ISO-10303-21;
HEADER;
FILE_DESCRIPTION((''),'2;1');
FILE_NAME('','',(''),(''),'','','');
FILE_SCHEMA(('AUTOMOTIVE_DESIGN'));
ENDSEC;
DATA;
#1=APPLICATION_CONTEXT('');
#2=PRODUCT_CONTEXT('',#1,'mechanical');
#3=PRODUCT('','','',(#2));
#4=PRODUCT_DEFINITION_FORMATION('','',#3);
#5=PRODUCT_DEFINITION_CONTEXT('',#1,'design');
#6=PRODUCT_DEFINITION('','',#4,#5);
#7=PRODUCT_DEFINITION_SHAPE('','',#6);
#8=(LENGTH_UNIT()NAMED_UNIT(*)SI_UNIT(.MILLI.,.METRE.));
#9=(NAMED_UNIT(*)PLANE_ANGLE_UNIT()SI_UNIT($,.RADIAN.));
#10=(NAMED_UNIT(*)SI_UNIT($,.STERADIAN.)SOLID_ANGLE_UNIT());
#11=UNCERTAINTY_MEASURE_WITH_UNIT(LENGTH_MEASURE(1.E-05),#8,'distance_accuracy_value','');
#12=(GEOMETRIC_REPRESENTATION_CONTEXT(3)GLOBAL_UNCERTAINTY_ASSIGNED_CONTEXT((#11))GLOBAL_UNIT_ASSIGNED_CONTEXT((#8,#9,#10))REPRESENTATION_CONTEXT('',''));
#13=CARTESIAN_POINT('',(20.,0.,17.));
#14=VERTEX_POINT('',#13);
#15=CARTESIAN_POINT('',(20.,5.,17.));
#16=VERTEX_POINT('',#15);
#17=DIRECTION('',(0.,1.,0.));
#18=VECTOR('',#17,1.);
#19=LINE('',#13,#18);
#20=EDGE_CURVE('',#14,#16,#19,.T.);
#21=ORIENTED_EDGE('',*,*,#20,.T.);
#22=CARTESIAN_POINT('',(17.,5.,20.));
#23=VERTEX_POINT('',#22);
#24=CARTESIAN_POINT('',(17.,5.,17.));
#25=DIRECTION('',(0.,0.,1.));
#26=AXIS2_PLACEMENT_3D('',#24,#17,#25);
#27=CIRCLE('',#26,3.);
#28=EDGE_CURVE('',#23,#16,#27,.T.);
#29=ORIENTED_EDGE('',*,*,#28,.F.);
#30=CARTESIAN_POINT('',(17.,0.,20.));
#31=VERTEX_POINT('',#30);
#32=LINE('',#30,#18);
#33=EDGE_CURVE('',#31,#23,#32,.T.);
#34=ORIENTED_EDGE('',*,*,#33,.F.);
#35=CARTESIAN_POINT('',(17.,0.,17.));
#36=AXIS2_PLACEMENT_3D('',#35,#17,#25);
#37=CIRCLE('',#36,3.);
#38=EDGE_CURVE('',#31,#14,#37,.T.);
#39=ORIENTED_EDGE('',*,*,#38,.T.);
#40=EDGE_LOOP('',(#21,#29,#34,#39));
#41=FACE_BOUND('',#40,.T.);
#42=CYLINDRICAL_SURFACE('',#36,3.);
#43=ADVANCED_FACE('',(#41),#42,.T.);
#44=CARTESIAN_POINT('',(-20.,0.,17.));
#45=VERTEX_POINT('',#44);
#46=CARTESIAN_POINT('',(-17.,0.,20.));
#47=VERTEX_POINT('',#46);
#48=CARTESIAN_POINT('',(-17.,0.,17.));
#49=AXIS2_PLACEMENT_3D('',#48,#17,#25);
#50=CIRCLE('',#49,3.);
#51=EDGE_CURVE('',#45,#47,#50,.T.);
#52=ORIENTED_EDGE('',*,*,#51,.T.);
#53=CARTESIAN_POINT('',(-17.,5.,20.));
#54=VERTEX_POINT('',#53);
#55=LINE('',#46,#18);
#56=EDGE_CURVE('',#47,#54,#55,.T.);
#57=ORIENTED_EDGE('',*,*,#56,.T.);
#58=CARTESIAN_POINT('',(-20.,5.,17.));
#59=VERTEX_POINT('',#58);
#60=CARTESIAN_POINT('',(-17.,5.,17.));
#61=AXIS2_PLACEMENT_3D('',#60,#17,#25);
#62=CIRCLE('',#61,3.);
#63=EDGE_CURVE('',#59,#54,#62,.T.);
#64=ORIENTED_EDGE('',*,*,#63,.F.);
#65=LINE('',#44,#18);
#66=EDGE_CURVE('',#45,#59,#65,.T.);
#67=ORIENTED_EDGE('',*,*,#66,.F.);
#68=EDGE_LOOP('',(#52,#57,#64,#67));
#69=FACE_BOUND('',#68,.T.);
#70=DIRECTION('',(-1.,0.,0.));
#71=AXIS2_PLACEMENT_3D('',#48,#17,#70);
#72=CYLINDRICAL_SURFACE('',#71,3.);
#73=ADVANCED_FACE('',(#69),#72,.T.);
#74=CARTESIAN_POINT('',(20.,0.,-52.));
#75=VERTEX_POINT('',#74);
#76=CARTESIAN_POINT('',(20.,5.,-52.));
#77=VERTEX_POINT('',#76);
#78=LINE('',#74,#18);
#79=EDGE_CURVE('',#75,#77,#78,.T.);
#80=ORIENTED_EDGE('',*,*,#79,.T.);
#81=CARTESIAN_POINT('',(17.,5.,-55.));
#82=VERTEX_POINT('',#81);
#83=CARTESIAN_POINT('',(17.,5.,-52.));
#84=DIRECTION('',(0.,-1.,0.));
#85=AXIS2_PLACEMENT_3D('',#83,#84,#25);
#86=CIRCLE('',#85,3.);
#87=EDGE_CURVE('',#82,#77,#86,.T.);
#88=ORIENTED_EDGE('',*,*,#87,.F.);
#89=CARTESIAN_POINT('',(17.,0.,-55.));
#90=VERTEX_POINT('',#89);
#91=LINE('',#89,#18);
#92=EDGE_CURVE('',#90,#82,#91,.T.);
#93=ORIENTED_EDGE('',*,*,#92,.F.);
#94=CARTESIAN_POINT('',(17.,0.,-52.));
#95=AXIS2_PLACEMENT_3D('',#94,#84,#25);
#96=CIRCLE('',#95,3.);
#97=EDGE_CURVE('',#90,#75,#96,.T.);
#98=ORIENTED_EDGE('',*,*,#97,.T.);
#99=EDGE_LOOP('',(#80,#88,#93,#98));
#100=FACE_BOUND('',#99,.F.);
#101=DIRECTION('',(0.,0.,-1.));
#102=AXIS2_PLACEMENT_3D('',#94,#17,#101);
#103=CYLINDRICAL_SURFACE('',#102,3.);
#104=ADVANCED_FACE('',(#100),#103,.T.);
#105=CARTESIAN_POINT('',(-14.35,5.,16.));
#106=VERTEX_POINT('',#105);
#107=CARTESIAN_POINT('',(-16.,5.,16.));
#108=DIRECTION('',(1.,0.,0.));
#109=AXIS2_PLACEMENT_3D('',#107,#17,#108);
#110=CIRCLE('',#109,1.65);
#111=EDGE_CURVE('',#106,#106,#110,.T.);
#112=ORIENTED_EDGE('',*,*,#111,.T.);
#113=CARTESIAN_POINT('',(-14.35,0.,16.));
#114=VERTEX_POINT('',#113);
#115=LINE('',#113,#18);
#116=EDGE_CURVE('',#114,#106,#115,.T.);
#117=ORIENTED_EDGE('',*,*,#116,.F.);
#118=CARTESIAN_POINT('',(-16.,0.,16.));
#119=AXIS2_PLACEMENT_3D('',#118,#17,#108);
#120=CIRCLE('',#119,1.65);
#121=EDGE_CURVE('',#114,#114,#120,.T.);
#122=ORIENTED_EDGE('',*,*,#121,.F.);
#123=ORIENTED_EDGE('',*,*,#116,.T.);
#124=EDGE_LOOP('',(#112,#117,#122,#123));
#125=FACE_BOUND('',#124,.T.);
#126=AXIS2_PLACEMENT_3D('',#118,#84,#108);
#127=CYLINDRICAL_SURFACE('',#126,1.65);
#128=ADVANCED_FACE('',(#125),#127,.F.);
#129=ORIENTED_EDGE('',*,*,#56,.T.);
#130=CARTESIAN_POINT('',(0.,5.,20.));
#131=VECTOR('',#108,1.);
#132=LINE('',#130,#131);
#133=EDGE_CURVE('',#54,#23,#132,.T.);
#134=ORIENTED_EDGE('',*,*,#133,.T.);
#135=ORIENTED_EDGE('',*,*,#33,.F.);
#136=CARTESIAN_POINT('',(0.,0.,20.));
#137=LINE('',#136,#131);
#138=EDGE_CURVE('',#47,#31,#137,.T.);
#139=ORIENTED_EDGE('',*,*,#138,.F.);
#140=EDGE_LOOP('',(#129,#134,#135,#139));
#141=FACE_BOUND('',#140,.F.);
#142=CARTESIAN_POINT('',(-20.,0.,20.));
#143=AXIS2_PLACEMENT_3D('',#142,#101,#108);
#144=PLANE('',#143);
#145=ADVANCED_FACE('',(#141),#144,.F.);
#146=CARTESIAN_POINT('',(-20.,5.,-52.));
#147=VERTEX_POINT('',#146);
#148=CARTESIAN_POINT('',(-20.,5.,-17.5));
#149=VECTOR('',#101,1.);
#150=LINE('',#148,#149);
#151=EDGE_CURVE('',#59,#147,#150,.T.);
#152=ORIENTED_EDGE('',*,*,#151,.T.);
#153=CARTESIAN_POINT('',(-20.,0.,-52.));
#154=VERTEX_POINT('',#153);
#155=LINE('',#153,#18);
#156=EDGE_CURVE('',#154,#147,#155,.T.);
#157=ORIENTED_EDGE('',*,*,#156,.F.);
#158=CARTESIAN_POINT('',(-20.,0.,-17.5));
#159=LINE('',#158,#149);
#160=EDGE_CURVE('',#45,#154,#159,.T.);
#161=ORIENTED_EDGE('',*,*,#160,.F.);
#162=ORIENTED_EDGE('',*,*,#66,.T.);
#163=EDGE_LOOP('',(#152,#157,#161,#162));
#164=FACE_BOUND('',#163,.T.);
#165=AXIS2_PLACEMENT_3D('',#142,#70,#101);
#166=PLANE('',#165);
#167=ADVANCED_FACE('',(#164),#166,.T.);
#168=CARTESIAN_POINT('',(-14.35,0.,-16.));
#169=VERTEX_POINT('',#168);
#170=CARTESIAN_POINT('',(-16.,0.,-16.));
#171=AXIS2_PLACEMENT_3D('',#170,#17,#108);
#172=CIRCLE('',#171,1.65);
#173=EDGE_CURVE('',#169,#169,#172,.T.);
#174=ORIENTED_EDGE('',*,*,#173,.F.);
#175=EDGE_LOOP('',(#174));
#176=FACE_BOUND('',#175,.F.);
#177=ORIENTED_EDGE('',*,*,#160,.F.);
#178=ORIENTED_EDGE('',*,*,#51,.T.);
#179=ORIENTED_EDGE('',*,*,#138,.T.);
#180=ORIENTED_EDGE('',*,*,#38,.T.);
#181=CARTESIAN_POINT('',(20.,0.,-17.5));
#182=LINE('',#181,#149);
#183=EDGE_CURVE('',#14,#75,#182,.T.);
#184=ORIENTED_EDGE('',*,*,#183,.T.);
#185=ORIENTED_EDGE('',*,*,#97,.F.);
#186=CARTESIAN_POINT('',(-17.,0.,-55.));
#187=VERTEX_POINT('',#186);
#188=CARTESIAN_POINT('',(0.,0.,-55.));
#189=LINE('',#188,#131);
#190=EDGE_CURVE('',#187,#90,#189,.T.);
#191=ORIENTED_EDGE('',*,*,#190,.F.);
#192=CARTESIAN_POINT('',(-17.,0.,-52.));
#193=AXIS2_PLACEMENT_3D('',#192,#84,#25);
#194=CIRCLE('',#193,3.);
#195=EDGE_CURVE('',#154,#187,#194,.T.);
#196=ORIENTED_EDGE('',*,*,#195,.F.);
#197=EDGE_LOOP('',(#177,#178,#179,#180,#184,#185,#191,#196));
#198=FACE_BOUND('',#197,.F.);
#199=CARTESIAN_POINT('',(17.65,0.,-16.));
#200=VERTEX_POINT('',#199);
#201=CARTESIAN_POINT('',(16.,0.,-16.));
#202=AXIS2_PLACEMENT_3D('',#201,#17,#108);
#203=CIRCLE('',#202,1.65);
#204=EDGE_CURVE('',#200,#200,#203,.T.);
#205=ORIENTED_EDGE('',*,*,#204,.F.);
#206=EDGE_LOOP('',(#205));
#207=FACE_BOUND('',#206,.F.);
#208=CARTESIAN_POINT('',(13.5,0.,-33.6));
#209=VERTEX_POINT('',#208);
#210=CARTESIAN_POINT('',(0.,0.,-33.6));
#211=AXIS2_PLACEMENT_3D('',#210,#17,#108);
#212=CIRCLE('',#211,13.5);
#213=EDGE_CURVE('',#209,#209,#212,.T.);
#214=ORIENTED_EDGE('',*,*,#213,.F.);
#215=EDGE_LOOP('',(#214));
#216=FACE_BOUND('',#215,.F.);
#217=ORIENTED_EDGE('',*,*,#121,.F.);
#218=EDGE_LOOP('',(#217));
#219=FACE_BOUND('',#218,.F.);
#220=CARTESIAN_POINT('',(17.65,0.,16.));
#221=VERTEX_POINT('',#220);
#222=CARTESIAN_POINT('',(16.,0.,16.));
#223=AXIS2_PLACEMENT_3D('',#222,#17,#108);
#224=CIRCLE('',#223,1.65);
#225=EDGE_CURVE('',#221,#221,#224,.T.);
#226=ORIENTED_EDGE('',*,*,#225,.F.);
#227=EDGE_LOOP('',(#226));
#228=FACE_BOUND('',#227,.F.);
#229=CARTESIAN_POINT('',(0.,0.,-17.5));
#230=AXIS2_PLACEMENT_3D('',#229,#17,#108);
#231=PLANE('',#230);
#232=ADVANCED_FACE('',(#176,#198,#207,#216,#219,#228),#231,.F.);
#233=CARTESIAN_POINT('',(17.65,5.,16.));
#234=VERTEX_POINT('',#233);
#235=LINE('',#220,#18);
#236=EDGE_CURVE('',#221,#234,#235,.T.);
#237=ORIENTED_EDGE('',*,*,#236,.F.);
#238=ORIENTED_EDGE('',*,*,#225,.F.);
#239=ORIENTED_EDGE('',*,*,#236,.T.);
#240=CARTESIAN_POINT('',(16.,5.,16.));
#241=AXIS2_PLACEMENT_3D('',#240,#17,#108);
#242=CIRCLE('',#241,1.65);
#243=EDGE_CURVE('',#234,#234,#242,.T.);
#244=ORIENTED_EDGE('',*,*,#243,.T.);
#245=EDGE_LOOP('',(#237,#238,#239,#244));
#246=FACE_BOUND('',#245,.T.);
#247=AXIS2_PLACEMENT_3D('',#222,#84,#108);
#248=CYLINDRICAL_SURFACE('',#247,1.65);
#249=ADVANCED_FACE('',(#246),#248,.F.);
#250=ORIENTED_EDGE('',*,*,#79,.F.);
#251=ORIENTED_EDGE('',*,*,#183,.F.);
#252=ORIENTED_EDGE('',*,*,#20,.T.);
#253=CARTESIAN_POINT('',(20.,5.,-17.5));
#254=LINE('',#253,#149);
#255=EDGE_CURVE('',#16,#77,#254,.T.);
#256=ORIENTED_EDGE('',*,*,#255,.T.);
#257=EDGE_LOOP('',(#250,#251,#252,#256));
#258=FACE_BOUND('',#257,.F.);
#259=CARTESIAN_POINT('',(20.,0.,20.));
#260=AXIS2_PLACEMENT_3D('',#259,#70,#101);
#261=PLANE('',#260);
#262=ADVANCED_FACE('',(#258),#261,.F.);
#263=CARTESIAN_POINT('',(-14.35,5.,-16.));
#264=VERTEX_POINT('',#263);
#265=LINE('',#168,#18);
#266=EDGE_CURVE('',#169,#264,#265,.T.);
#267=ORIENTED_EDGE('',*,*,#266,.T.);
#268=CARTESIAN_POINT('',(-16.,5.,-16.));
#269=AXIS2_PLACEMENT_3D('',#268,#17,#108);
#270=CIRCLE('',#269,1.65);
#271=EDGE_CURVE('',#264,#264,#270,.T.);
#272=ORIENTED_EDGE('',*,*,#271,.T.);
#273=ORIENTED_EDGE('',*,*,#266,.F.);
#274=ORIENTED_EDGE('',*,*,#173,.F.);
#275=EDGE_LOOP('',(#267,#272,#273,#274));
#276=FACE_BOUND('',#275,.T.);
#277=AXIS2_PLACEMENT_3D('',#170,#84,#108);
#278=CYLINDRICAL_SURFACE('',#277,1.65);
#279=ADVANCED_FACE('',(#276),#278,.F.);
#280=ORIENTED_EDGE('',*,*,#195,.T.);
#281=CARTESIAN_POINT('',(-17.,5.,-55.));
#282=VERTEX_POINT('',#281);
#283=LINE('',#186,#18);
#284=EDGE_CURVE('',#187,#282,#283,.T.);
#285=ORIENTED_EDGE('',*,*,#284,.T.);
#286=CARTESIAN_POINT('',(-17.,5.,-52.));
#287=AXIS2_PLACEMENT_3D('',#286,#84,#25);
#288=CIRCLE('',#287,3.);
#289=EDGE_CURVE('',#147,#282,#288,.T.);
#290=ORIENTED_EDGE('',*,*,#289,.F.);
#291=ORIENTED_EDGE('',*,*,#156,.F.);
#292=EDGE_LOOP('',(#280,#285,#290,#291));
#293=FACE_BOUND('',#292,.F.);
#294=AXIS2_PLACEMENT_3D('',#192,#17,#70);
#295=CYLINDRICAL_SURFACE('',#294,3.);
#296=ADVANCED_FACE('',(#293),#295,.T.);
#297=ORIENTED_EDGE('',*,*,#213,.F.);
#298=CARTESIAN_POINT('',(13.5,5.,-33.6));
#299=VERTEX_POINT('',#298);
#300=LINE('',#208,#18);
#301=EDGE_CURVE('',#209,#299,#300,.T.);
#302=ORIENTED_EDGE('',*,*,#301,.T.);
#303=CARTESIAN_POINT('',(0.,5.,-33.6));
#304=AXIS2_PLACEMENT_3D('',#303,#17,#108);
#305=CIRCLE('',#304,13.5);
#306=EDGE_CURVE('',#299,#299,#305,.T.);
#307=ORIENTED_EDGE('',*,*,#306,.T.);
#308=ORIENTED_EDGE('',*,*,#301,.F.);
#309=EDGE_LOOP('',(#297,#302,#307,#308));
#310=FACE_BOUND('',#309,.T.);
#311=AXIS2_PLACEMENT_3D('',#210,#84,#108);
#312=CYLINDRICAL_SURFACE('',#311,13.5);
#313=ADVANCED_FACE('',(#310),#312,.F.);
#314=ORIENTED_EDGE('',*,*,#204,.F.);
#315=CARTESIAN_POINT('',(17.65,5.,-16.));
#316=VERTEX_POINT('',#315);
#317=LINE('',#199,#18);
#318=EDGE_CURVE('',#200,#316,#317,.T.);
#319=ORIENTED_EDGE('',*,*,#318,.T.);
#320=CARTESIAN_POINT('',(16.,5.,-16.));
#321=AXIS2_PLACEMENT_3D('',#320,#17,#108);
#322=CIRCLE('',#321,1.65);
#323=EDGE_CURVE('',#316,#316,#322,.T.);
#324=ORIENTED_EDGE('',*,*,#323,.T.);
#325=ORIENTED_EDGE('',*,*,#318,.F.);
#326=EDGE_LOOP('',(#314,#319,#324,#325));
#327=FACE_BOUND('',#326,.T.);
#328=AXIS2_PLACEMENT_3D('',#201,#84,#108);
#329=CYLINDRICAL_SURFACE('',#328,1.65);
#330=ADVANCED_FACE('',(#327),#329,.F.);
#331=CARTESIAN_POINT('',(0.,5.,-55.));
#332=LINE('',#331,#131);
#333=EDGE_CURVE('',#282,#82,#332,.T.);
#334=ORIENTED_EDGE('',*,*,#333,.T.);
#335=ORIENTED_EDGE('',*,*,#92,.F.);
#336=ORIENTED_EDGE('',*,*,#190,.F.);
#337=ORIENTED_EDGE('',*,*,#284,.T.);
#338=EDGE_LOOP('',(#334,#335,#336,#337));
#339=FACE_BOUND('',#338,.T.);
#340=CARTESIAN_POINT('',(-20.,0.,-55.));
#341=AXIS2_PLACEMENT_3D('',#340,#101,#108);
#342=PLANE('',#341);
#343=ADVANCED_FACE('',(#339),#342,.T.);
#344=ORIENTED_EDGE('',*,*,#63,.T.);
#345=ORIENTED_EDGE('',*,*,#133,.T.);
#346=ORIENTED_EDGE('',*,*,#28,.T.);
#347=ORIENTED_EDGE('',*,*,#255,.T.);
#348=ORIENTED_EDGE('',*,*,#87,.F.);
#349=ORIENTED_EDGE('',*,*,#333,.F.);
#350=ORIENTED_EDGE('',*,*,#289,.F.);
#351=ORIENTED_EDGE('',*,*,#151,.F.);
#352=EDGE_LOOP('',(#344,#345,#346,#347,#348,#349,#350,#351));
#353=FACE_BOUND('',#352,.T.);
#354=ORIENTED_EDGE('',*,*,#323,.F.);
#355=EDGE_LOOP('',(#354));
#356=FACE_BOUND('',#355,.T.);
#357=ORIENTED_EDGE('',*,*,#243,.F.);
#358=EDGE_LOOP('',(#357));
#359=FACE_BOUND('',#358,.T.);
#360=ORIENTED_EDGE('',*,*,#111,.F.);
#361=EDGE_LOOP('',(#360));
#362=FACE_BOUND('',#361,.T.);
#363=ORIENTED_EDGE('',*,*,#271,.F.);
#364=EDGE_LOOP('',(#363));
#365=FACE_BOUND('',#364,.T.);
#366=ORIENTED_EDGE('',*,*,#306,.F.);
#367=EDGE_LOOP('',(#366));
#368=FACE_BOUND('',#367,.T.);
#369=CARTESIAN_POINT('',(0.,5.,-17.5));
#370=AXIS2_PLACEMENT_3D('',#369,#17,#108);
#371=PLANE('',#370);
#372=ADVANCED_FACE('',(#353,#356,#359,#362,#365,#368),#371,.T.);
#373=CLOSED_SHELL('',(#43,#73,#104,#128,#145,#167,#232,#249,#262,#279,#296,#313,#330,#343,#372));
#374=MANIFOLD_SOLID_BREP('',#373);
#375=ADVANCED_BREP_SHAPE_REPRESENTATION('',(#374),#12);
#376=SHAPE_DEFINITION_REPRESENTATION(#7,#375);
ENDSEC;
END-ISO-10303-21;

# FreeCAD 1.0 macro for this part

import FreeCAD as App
import Part
import Sketcher
from FreeCAD import Vector


def edges_at(feature, points):
    """Names of the edges that pass closest to the given points."""
    edges = feature.Shape.Edges
    near = lambda p: min(range(len(edges)), key=lambda i: edges[i].distToShape(Part.Vertex(*p))[0])
    return sorted({f"Edge{near(p) + 1}" for p in points})


def add_polygon(sketch, points):
    """Adds a closed chain of lines whose ends are joined by coincident constraints."""
    first, n = sketch.GeometryCount, len(points)
    for a, b in zip(points, points[1:] + points[:1]):
        sketch.addGeometry(Part.LineSegment(App.Vector(*a, 0), App.Vector(*b, 0)), False)
    for i in range(n):
        sketch.addConstraint(Sketcher.Constraint("Coincident", first + i, 2, first + (i + 1) % n, 1))

doc = App.newDocument("Part")
body = doc.addObject("PartDesign::Body", "Body")

sketch1 = body.newObject("Sketcher::SketchObject", "Sketch")
sketch1.AttachmentSupport = (doc.getObject("XZ_Plane"), [""])
sketch1.MapMode = "FlatFace"
add_polygon(sketch1, [(-20, -55), (-20, 20), (20, 20), (20, -55)])
sketch1.addGeometry(Part.Circle(Vector(-16, 16, 0), Vector(0, 0, 1), 1.65), False)
sketch1.addGeometry(Part.Circle(Vector(16, 16, 0), Vector(0, 0, 1), 1.65), False)
sketch1.addGeometry(Part.Circle(Vector(-16, -16, 0), Vector(0, 0, 1), 1.65), False)
sketch1.addGeometry(Part.Circle(Vector(16, -16, 0), Vector(0, 0, 1), 1.65), False)
sketch1.addGeometry(Part.Circle(Vector(0, -33.6, 0), Vector(0, 0, 1), 13.5), False)
sketch1.addConstraint([
    Sketcher.Constraint("Vertical", 0),
    Sketcher.Constraint("Horizontal", 1),
    Sketcher.Constraint("Vertical", 2),
    Sketcher.Constraint("Horizontal", 3),
    Sketcher.Constraint("Equal", 4, 5),
    Sketcher.Constraint("Equal", 5, 6),
    Sketcher.Constraint("Equal", 6, 7),
    Sketcher.Constraint("Symmetric", 5, 3, 6, 3, -1, 1),
    Sketcher.Constraint("Symmetric", 4, 3, 7, 3, -1, 1),
    Sketcher.Constraint("Symmetric", 4, 3, 5, 3, -2),
    Sketcher.Constraint("PointOnObject", 8, 3, -2),
    Sketcher.Constraint("Diameter", 8, 27.0),
    Sketcher.Constraint("Diameter", 4, 3.3),
    Sketcher.Constraint("DistanceX", 1, 1, 1, 2, 40.0),
    Sketcher.Constraint("DistanceY", 0, 1, 0, 2, 75.0),
    Sketcher.Constraint("DistanceX", 4, 3, -1, 1, 16.0),
    Sketcher.Constraint("DistanceY", -1, 1, 4, 3, 16.0),
    Sketcher.Constraint("DistanceX", 0, 2, -1, 1, 20.0),
    Sketcher.Constraint("DistanceY", -1, 1, 0, 2, 20.0),
    Sketcher.Constraint("DistanceY", 8, 3, -1, 1, 33.6),
])
pad1 = body.newObject("PartDesign::Pad", "Pad")
pad1.Profile = sketch1
pad1.Length = 5
pad1.Reversed = True
doc.recompute()

fillet = body.newObject("PartDesign::Fillet", "Fillet")
fillet.Base = (pad1, edges_at(pad1, [
    (20, 2.5, 20),
    (-20, 2.5, 20),
    (-20, 2.5, -55),
    (20, 2.5, -55),
]))
fillet.Radius = 3

doc.recompute()
